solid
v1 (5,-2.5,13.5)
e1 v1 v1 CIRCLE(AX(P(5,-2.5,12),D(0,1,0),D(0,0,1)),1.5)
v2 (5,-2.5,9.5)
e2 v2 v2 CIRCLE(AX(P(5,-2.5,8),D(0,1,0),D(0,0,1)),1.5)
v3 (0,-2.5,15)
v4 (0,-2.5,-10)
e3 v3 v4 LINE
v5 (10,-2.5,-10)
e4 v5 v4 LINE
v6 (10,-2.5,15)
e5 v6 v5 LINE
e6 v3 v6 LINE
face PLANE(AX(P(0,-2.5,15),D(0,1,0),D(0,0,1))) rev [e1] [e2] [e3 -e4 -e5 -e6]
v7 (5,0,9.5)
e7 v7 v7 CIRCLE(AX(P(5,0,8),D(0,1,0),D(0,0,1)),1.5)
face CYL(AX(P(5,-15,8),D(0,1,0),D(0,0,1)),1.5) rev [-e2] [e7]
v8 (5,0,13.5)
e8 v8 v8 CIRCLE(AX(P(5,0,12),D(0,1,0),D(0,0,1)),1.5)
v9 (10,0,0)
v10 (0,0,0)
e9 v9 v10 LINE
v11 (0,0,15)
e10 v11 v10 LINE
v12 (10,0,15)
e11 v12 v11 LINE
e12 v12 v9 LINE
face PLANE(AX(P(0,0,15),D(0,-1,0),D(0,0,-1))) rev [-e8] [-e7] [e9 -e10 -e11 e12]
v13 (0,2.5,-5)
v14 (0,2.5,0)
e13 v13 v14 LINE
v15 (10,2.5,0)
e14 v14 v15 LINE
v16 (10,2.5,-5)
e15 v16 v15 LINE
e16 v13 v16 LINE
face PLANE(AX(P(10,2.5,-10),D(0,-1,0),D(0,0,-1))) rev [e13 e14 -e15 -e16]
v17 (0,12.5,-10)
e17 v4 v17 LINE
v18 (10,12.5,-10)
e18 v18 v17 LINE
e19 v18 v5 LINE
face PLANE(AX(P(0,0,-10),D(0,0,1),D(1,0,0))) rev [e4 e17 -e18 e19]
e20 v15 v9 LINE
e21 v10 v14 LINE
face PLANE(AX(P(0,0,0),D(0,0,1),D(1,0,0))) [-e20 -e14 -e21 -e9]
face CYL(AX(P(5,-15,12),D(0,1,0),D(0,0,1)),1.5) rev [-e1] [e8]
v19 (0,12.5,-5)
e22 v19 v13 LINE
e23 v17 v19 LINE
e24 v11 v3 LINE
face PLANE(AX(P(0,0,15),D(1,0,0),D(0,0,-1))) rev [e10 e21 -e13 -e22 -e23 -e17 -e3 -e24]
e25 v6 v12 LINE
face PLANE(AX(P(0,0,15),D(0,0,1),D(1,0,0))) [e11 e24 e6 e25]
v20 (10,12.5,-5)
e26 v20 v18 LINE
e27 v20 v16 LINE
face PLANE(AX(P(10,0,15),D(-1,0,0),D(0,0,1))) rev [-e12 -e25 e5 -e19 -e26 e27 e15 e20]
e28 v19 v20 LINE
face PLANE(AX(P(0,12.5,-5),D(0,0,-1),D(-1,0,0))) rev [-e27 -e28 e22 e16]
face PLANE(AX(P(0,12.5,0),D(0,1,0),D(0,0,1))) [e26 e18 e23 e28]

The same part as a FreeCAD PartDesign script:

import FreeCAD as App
import Part
import Sketcher
Q = App.Units.Quantity

doc = App.newDocument("Part")
params = doc.addObject("Spreadsheet::Sheet", "Params")
for row, (alias, value) in enumerate([
    ("sketch1_width", "10 mm"),
    ("sketch1_height", "2.5 mm"),
    ("pad1_length", "15 mm"),
    ("sketch2_diameter", "3 mm"),
    ("pocket1_length", "15 mm"),
    ("sketch3_width", "10 mm"),
    ("sketch3_height", "5 mm"),
    ("pad2_length", "10 mm"),
    ("sketch4_width", "10 mm"),
    ("sketch4_height", "5 mm"),
    ("pad3_length", "10 mm"),
], start=1):
    params.set(f"A{row}", alias)
    params.set(f"B{row}", "=" + value)
    params.setAlias(f"B{row}", alias)

body = doc.addObject("PartDesign::Body", "Body")

# Sketch on XY plane
sketch1 = doc.addObject("Sketcher::SketchObject", "Sketch")
body.addObject(sketch1)
sketch1.AttachmentSupport = (doc.XY_Plane, [""])
sketch1.MapMode = "FlatFace"
sketch1.addGeometry([
    Part.LineSegment(App.Vector(0, 0, 0), App.Vector(0, -2.5, 0)),
    Part.LineSegment(App.Vector(0, -2.5, 0), App.Vector(10, -2.5, 0)),
    Part.LineSegment(App.Vector(10, -2.5, 0), App.Vector(10, 0, 0)),
    Part.LineSegment(App.Vector(10, 0, 0), App.Vector(0, 0, 0)),
], False)
sketch1.addConstraint([
    Sketcher.Constraint("Coincident", 0, 2, 1, 1),
    Sketcher.Constraint("Coincident", 1, 2, 2, 1),
    Sketcher.Constraint("Coincident", 2, 2, 3, 1),
    Sketcher.Constraint("Coincident", 3, 2, 0, 1),
    Sketcher.Constraint("Vertical", 0),
    Sketcher.Constraint("Horizontal", 1),
    Sketcher.Constraint("Vertical", 2),
    Sketcher.Constraint("Horizontal", 3),
    Sketcher.Constraint("Coincident", 3, 2, -1, 1),
    Sketcher.Constraint("DistanceX", 1, 1, 1, 2, Q("10 mm")),
    Sketcher.Constraint("DistanceY", 0, 2, 0, 1, Q("2.5 mm")),
])
sketch1.setExpression("Constraints[9]", "Params.sketch1_width")
sketch1.setExpression("Constraints[10]", "Params.sketch1_height")
pad1 = doc.addObject("PartDesign::Pad", "Pad")
body.addObject(pad1)
pad1.Profile = sketch1
pad1.setExpression("Length", "Params.pad1_length")

# Sketch on XZ plane
sketch2 = doc.addObject("Sketcher::SketchObject", "Sketch001")
body.addObject(sketch2)
sketch2.AttachmentSupport = (doc.XZ_Plane, [""])
sketch2.MapMode = "FlatFace"
sketch2.addGeometry([
    Part.Circle(App.Vector(5, 12, 0), App.Vector(0, 0, 1), 1.5),
    Part.Circle(App.Vector(5, 8, 0), App.Vector(0, 0, 1), 1.5),
], False)
sketch2.addConstraint([
    Sketcher.Constraint("Equal", 0, 1),
    Sketcher.Constraint("Vertical", 0, 3, 1, 3),
    Sketcher.Constraint("Diameter", 0, Q("3 mm")),
    Sketcher.Constraint("DistanceX", -1, 1, 0, 3, Q("5 mm")),
    Sketcher.Constraint("DistanceY", -1, 1, 0, 3, Q("12 mm")),
    Sketcher.Constraint("DistanceY", -1, 1, 1, 3, Q("8 mm")),
])
sketch2.setExpression("Constraints[2]", "Params.sketch2_diameter")
pocket1 = doc.addObject("PartDesign::Pocket", "Pocket")
body.addObject(pocket1)
pocket1.Profile = sketch2
pocket1.setExpression("Length", "Params.pocket1_length")
pocket1.Reversed = True

# Sketch on XY plane
sketch3 = doc.addObject("Sketcher::SketchObject", "Sketch002")
body.addObject(sketch3)
sketch3.AttachmentSupport = (doc.XY_Plane, [""])
sketch3.MapMode = "FlatFace"
sketch3.addGeometry([
    Part.LineSegment(App.Vector(10, 2.5, 0), App.Vector(10, -2.5, 0)),
    Part.LineSegment(App.Vector(10, -2.5, 0), App.Vector(0, -2.5, 0)),
    Part.LineSegment(App.Vector(0, -2.5, 0), App.Vector(0, 2.5, 0)),
    Part.LineSegment(App.Vector(0, 2.5, 0), App.Vector(10, 2.5, 0)),
], False)
sketch3.addConstraint([
    Sketcher.Constraint("Coincident", 0, 2, 1, 1),
    Sketcher.Constraint("Coincident", 1, 2, 2, 1),
    Sketcher.Constraint("Coincident", 2, 2, 3, 1),
    Sketcher.Constraint("Coincident", 3, 2, 0, 1),
    Sketcher.Constraint("Vertical", 0),
    Sketcher.Constraint("Horizontal", 1),
    Sketcher.Constraint("Vertical", 2),
    Sketcher.Constraint("Horizontal", 3),
    Sketcher.Constraint("Symmetric", 1, 2, 2, 2, -1, 1),
    Sketcher.Constraint("DistanceX", 1, 2, 1, 1, Q("10 mm")),
    Sketcher.Constraint("DistanceY", 0, 2, 0, 1, Q("5 mm")),
])
sketch3.setExpression("Constraints[9]", "Params.sketch3_width")
sketch3.setExpression("Constraints[10]", "Params.sketch3_height")
pad2 = doc.addObject("PartDesign::Pad", "Pad001")
body.addObject(pad2)
pad2.Profile = sketch3
pad2.setExpression("Length", "Params.pad2_length")
pad2.Reversed = True

# Sketch on XZ plane
sketch4 = doc.addObject("Sketcher::SketchObject", "Sketch003")
body.addObject(sketch4)
sketch4.AttachmentSupport = (doc.XZ_Plane, [""])
sketch4.MapMode = "FlatFace"
sketch4.AttachmentOffset = App.Placement(App.Vector(0, 0, -2.5), App.Rotation())
sketch4.addGeometry([
    Part.LineSegment(App.Vector(0, -10, 0), App.Vector(0, -5, 0)),
    Part.LineSegment(App.Vector(0, -5, 0), App.Vector(10, -5, 0)),
    Part.LineSegment(App.Vector(10, -5, 0), App.Vector(10, -10, 0)),
    Part.LineSegment(App.Vector(10, -10, 0), App.Vector(0, -10, 0)),
], False)
sketch4.addConstraint([
    Sketcher.Constraint("Coincident", 0, 2, 1, 1),
    Sketcher.Constraint("Coincident", 1, 2, 2, 1),
    Sketcher.Constraint("Coincident", 2, 2, 3, 1),
    Sketcher.Constraint("Coincident", 3, 2, 0, 1),
    Sketcher.Constraint("Vertical", 0),
    Sketcher.Constraint("Horizontal", 1),
    Sketcher.Constraint("Vertical", 2),
    Sketcher.Constraint("Horizontal", 3),
    Sketcher.Constraint("PointOnObject", 0, 2, -2),
    Sketcher.Constraint("DistanceX", 1, 1, 1, 2, Q("10 mm")),
    Sketcher.Constraint("DistanceY", 0, 1, 0, 2, Q("5 mm")),
    Sketcher.Constraint("DistanceY", 0, 2, -1, 1, Q("5 mm")),
])
sketch4.setExpression("Constraints[9]", "Params.sketch4_width")
sketch4.setExpression("Constraints[10]", "Params.sketch4_height")
pad3 = doc.addObject("PartDesign::Pad", "Pad002")
body.addObject(pad3)
pad3.Profile = sketch4
pad3.setExpression("Length", "Params.pad3_length")
pad3.Reversed = True

doc.recompute()
